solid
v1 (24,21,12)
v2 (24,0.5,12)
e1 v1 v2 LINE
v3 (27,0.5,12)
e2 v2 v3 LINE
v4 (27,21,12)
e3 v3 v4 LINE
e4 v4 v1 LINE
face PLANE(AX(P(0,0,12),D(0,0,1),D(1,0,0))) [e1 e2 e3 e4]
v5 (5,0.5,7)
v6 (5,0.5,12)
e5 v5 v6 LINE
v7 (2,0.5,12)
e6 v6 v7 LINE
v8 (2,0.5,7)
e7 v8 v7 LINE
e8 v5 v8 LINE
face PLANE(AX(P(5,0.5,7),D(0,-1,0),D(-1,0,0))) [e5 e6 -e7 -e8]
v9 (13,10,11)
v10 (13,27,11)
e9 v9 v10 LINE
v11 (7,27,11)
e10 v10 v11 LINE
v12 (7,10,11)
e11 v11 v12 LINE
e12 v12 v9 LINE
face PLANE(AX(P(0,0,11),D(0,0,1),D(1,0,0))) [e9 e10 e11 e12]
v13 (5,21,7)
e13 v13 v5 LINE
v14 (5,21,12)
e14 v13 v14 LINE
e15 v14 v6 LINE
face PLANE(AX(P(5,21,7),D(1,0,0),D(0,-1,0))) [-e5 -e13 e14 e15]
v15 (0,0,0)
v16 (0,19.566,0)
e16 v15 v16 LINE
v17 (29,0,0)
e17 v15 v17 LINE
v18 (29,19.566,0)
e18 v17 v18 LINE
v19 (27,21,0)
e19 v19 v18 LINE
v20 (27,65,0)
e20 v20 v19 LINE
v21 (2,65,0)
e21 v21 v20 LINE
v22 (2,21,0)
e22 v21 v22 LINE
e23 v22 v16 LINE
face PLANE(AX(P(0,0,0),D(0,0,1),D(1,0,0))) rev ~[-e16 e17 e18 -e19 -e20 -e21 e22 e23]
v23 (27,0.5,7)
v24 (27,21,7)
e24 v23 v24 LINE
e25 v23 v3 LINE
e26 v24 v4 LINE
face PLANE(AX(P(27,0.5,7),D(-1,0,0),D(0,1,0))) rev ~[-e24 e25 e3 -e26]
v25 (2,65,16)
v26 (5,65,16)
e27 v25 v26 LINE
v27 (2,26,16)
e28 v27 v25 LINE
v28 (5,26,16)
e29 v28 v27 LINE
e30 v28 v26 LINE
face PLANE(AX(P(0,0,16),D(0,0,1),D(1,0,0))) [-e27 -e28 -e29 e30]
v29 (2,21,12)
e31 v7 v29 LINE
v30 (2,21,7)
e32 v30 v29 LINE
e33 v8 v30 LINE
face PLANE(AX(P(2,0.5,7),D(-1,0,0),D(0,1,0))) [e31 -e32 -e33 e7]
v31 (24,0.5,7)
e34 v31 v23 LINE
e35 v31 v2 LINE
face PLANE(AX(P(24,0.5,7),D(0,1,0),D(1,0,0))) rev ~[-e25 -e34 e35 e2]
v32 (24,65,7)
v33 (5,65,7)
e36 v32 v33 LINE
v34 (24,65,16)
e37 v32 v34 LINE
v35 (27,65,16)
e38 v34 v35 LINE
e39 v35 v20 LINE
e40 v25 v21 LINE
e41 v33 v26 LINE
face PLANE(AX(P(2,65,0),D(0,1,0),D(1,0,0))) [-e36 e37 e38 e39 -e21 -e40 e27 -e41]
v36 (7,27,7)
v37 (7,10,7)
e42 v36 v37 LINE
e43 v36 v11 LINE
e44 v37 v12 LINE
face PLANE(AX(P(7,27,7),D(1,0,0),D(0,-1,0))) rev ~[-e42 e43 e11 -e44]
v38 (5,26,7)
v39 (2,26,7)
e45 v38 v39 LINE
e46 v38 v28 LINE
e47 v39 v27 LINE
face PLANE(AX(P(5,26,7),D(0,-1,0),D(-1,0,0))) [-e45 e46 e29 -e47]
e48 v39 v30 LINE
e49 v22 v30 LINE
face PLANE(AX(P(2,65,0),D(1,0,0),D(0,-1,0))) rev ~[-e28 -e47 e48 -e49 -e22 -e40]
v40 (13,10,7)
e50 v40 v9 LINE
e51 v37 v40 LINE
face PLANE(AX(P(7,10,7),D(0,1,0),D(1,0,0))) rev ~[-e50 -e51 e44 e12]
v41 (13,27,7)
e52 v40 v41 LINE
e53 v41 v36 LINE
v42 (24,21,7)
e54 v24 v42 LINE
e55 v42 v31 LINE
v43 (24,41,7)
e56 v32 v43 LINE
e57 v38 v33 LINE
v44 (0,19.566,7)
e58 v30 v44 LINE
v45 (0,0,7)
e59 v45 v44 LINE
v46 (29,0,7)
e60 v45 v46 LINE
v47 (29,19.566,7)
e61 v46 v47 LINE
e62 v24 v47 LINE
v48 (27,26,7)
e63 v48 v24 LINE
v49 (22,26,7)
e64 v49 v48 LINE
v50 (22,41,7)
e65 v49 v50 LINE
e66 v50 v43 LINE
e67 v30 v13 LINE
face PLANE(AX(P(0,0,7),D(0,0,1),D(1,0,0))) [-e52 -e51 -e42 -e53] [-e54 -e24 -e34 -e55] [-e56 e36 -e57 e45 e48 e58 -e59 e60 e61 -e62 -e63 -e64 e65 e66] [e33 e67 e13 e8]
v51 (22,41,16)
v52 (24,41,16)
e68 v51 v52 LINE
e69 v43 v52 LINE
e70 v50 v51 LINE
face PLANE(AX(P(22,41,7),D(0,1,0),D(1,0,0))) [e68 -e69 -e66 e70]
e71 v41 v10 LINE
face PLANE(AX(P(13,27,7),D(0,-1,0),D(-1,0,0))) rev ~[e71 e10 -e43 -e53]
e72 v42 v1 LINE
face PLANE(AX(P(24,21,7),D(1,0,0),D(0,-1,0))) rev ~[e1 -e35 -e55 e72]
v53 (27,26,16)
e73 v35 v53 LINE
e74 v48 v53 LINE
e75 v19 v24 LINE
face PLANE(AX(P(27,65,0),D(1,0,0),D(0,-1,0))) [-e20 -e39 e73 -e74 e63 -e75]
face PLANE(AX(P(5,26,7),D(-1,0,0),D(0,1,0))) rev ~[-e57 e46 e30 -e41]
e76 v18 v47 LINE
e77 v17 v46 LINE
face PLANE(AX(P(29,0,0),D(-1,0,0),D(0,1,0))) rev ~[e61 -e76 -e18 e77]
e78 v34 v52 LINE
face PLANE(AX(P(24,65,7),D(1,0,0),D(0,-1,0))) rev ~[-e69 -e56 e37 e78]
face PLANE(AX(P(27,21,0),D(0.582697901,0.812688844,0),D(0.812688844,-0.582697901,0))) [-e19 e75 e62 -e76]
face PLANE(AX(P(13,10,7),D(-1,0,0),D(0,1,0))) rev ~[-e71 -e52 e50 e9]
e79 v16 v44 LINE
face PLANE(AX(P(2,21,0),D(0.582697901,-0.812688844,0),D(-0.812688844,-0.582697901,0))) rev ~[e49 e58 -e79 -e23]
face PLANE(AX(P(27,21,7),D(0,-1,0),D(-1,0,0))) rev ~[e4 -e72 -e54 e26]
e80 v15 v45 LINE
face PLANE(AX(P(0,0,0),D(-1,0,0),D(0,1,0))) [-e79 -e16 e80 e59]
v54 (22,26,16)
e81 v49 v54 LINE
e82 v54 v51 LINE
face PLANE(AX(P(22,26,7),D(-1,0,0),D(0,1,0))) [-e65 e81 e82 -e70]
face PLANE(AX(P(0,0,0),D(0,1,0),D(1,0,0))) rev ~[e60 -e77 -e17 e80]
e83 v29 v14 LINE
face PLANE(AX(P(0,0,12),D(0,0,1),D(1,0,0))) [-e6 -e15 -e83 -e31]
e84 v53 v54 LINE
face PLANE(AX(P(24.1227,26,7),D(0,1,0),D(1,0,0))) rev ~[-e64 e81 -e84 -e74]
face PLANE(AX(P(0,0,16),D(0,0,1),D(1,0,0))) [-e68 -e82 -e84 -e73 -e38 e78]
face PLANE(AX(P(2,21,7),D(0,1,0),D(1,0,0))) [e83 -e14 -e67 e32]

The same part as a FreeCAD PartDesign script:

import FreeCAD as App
import Part
import Sketcher
from FreeCAD import Vector
Q = App.Units.Quantity

doc = App.newDocument("Part")
body = doc.addObject("PartDesign::Body", "Body")

# Sketch on XY plane
sketch1 = doc.addObject("Sketcher::SketchObject", "Sketch")
body.addObject(sketch1)
sketch1.AttachmentSupport = (doc.XY_Plane, [""])
sketch1.MapMode = "FlatFace"
sketch1.addGeometry([
    Part.LineSegment(Vector(0, 19.6, 0), Vector(0, 0, 0)),  # 0
    Part.LineSegment(Vector(0, 0, 0), Vector(29, 0, 0)),  # 1
    Part.LineSegment(Vector(29, 0, 0), Vector(29, 19.6, 0)),  # 2
    Part.LineSegment(Vector(29, 19.6, 0), Vector(27, 21, 0)),  # 3
    Part.LineSegment(Vector(27, 21, 0), Vector(27, 65, 0)),  # 4
    Part.LineSegment(Vector(27, 65, 0), Vector(2, 65, 0)),  # 5
    Part.LineSegment(Vector(2, 65, 0), Vector(2, 21, 0)),  # 6
    Part.LineSegment(Vector(2, 21, 0), Vector(0, 19.6, 0)),  # 7
], False)
sketch1.addConstraint([
    Sketcher.Constraint("Coincident", 0, 2, 1, 1),
    Sketcher.Constraint("Coincident", 1, 2, 2, 1),
    Sketcher.Constraint("Coincident", 2, 2, 3, 1),
    Sketcher.Constraint("Coincident", 3, 2, 4, 1),
    Sketcher.Constraint("Coincident", 4, 2, 5, 1),
    Sketcher.Constraint("Coincident", 5, 2, 6, 1),
    Sketcher.Constraint("Coincident", 6, 2, 7, 1),
    Sketcher.Constraint("Coincident", 7, 2, 0, 1),
    Sketcher.Constraint("Vertical", 0),
    Sketcher.Constraint("Horizontal", 1),
    Sketcher.Constraint("Vertical", 2),
    Sketcher.Constraint("Vertical", 4),
    Sketcher.Constraint("Horizontal", 5),
    Sketcher.Constraint("Vertical", 6),
    Sketcher.Constraint("Coincident", 0, 2, -1, 1),
    Sketcher.Constraint("Horizontal", 3, 2, 6, 2),
    Sketcher.Constraint("Horizontal", 2, 2, 7, 2),
    Sketcher.Constraint("Equal", 3, 7),
    Sketcher.Constraint("DistanceX", 1, 1, 1, 2, Q("29 mm")),
    Sketcher.Constraint("DistanceX", 5, 2, 5, 1, Q("25 mm")),
    Sketcher.Constraint("DistanceY", 4, 1, 4, 2, Q("44 mm")),
    Sketcher.Constraint("DistanceY", -1, 1, 3, 2, Q("21 mm")),
    Sketcher.Constraint("Angle", 3, Q("144.3595 deg")),
])
pad1 = doc.addObject("PartDesign::Pad", "Pad")
body.addObject(pad1)
pad1.Profile = sketch1
pad1.Length = 7

# Sketch on XY plane
sketch2 = doc.addObject("Sketcher::SketchObject", "Sketch001")
body.addObject(sketch2)
sketch2.AttachmentSupport = (doc.XY_Plane, [""])
sketch2.MapMode = "FlatFace"
sketch2.AttachmentOffset = App.Placement(Vector(0, 0, 7), App.Rotation())
sketch2.addGeometry([
    Part.LineSegment(Vector(5, 26, 0), Vector(5, 65, 0)),  # 0
    Part.LineSegment(Vector(5, 65, 0), Vector(2, 65, 0)),  # 1
    Part.LineSegment(Vector(2, 65, 0), Vector(2, 26, 0)),  # 2
    Part.LineSegment(Vector(2, 26, 0), Vector(5, 26, 0)),  # 3
    Part.LineSegment(Vector(27, 26, 0), Vector(27, 65, 0)),  # 4
    Part.LineSegment(Vector(27, 65, 0), Vector(24, 65, 0)),  # 5
    Part.LineSegment(Vector(24, 65, 0), Vector(24, 41, 0)),  # 6
    Part.LineSegment(Vector(24, 41, 0), Vector(22, 41, 0)),  # 7
    Part.LineSegment(Vector(22, 41, 0), Vector(22, 26, 0)),  # 8
    Part.LineSegment(Vector(22, 26, 0), Vector(27, 26, 0)),  # 9
], False)
sketch2.addConstraint([
    Sketcher.Constraint("Coincident", 0, 2, 1, 1),
    Sketcher.Constraint("Coincident", 1, 2, 2, 1),
    Sketcher.Constraint("Coincident", 2, 2, 3, 1),
    Sketcher.Constraint("Coincident", 3, 2, 0, 1),
    Sketcher.Constraint("Coincident", 4, 2, 5, 1),
    Sketcher.Constraint("Coincident", 5, 2, 6, 1),
    Sketcher.Constraint("Coincident", 6, 2, 7, 1),
    Sketcher.Constraint("Coincident", 7, 2, 8, 1),
    Sketcher.Constraint("Coincident", 8, 2, 9, 1),
    Sketcher.Constraint("Coincident", 9, 2, 4, 1),
    Sketcher.Constraint("Vertical", 0),
    Sketcher.Constraint("Horizontal", 1),
    Sketcher.Constraint("Vertical", 2),
    Sketcher.Constraint("Horizontal", 3),
    Sketcher.Constraint("Vertical", 4),
    Sketcher.Constraint("Horizontal", 5),
    Sketcher.Constraint("Vertical", 6),
    Sketcher.Constraint("Horizontal", 7),
    Sketcher.Constraint("Vertical", 8),
    Sketcher.Constraint("Horizontal", 9),
    Sketcher.Constraint("Horizontal", 1, 2, 4, 2),
    Sketcher.Constraint("Horizontal", 3, 2, 8, 2),
    Sketcher.Constraint("Equal", 3, 5),
    Sketcher.Constraint("DistanceY", 8, 2, 8, 1, Q("15 mm")),
    Sketcher.Constraint("DistanceX", 1, 2, 1, 1, Q("3 mm")),
    Sketcher.Constraint("DistanceX", 7, 2, 7, 1, Q("2 mm")),
    Sketcher.Constraint("DistanceY", 0, 1, 0, 2, Q("39 mm")),
    Sketcher.Constraint("DistanceX", -1, 1, 0, 2, Q("5 mm")),
    Sketcher.Constraint("DistanceY", -1, 1, 0, 2, Q("65 mm")),
    Sketcher.Constraint("DistanceX", -1, 1, 4, 2, Q("27 mm")),
])
pad2 = doc.addObject("PartDesign::Pad", "Pad001")
body.addObject(pad2)
pad2.Profile = sketch2
pad2.Length = 9

# Sketch on XY plane
sketch3 = doc.addObject("Sketcher::SketchObject", "Sketch002")
body.addObject(sketch3)
sketch3.AttachmentSupport = (doc.XY_Plane, [""])
sketch3.MapMode = "FlatFace"
sketch3.AttachmentOffset = App.Placement(Vector(0, 0, 7), App.Rotation())
sketch3.addGeometry([
    Part.LineSegment(Vector(2, 21, 0), Vector(2, 0.5, 0)),  # 0
    Part.LineSegment(Vector(2, 0.5, 0), Vector(5, 0.5, 0)),  # 1
    Part.LineSegment(Vector(5, 0.5, 0), Vector(5, 21, 0)),  # 2
    Part.LineSegment(Vector(5, 21, 0), Vector(2, 21, 0)),  # 3
    Part.LineSegment(Vector(24, 0.5, 0), Vector(27, 0.5, 0)),  # 4
    Part.LineSegment(Vector(27, 0.5, 0), Vector(27, 21, 0)),  # 5
    Part.LineSegment(Vector(27, 21, 0), Vector(24, 21, 0)),  # 6
    Part.LineSegment(Vector(24, 21, 0), Vector(24, 0.5, 0)),  # 7
], False)
sketch3.addConstraint([
    Sketcher.Constraint("Coincident", 0, 2, 1, 1),
    Sketcher.Constraint("Coincident", 1, 2, 2, 1),
    Sketcher.Constraint("Coincident", 2, 2, 3, 1),
    Sketcher.Constraint("Coincident", 3, 2, 0, 1),
    Sketcher.Constraint("Coincident", 4, 2, 5, 1),
    Sketcher.Constraint("Coincident", 5, 2, 6, 1),
    Sketcher.Constraint("Coincident", 6, 2, 7, 1),
    Sketcher.Constraint("Coincident", 7, 2, 4, 1),
    Sketcher.Constraint("Vertical", 0),
    Sketcher.Constraint("Horizontal", 1),
    Sketcher.Constraint("Vertical", 2),
    Sketcher.Constraint("Horizontal", 3),
    Sketcher.Constraint("Horizontal", 4),
    Sketcher.Constraint("Vertical", 5),
    Sketcher.Constraint("Horizontal", 6),
    Sketcher.Constraint("Vertical", 7),
    Sketcher.Constraint("Horizontal", 1, 2, 4, 2),
    Sketcher.Constraint("Horizontal", 3, 2, 5, 2),
    Sketcher.Constraint("Equal", 3, 4),
    Sketcher.Constraint("DistanceY", 0, 2, 0, 1, Q("20.5 mm")),
    Sketcher.Constraint("DistanceX", 1, 1, 1, 2, Q("3 mm")),
    Sketcher.Constraint("DistanceX", -1, 1, 0, 2, Q("2 mm")),
    Sketcher.Constraint("DistanceY", -1, 1, 2, 2, Q("21 mm")),
    Sketcher.Constraint("DistanceX", -1, 1, 4, 2, Q("27 mm")),
])
pad3 = doc.addObject("PartDesign::Pad", "Pad002")
body.addObject(pad3)
pad3.Profile = sketch3
pad3.Length = 5

# Sketch on XY plane
sketch4 = doc.addObject("Sketcher::SketchObject", "Sketch003")
body.addObject(sketch4)
sketch4.AttachmentSupport = (doc.XY_Plane, [""])
sketch4.MapMode = "FlatFace"
sketch4.AttachmentOffset = App.Placement(Vector(0, 0, 7), App.Rotation())
sketch4.addGeometry([
    Part.LineSegment(Vector(7, 27, 0), Vector(7, 10, 0)),
    Part.LineSegment(Vector(7, 10, 0), Vector(13, 10, 0)),
    Part.LineSegment(Vector(13, 10, 0), Vector(13, 27, 0)),
    Part.LineSegment(Vector(13, 27, 0), Vector(7, 27, 0)),
], False)
sketch4.addConstraint([
    Sketcher.Constraint("Coincident", 0, 2, 1, 1),
    Sketcher.Constraint("Coincident", 1, 2, 2, 1),
    Sketcher.Constraint("Coincident", 2, 2, 3, 1),
    Sketcher.Constraint("Coincident", 3, 2, 0, 1),
    Sketcher.Constraint("Vertical", 0),
    Sketcher.Constraint("Horizontal", 1),
    Sketcher.Constraint("Vertical", 2),
    Sketcher.Constraint("Horizontal", 3),
    Sketcher.Constraint("DistanceX", 1, 1, 1, 2, Q("6 mm")),
    Sketcher.Constraint("DistanceY", 0, 2, 0, 1, Q("17 mm")),
    Sketcher.Constraint("DistanceX", -1, 1, 0, 2, Q("7 mm")),
    Sketcher.Constraint("DistanceY", -1, 1, 0, 2, Q("10 mm")),
])
pad4 = doc.addObject("PartDesign::Pad", "Pad003")
body.addObject(pad4)
pad4.Profile = sketch4
pad4.Length = 4

doc.recompute()
